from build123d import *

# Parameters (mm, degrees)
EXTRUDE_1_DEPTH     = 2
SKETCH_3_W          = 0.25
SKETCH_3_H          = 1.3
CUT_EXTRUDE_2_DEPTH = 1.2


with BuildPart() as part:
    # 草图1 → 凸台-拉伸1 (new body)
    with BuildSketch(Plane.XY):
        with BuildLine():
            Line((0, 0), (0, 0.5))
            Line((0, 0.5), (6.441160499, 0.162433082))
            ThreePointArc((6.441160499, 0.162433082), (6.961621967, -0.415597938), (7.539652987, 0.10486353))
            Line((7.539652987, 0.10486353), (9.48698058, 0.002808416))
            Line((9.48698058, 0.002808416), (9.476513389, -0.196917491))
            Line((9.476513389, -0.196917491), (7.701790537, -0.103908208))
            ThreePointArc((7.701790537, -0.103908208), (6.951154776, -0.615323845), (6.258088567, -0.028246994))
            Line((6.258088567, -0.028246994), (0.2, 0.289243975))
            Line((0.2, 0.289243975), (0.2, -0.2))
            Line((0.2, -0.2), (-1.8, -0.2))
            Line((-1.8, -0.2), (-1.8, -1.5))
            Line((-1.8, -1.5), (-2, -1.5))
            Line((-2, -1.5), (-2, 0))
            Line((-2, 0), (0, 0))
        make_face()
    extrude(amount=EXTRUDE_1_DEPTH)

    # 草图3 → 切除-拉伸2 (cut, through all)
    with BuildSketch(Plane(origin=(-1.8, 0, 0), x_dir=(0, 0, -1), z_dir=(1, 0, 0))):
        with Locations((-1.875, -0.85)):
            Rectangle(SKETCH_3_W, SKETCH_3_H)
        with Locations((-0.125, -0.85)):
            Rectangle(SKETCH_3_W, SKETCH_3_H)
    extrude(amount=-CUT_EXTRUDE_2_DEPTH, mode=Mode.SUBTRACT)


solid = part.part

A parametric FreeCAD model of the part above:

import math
import FreeCAD as App
import Part
import Sketcher
Q = App.Units.Quantity

doc = App.newDocument("Part")
body = doc.addObject("PartDesign::Body", "Body")

sketch1 = body.newObject("Sketcher::SketchObject", "Sketch")
sketch1.AttachmentSupport = (doc.getObject("XY_Plane"), [""])
sketch1.MapMode = "FlatFace"
sketch1.addGeometry(Part.LineSegment(App.Vector(0, 0.5, 0), App.Vector(0, 0, 0)), False)
sketch1.addGeometry(Part.LineSegment(App.Vector(0, 0, 0), App.Vector(-2, 0, 0)), False)
sketch1.addGeometry(Part.LineSegment(App.Vector(-2, 0, 0), App.Vector(-2, -1.5, 0)), False)
sketch1.addGeometry(Part.LineSegment(App.Vector(-2, -1.5, 0), App.Vector(-1.8, -1.5, 0)), False)
sketch1.addGeometry(Part.LineSegment(App.Vector(-1.8, -1.5, 0), App.Vector(-1.8, -0.2, 0)), False)
sketch1.addGeometry(Part.LineSegment(App.Vector(-1.8, -0.2, 0), App.Vector(0.2, -0.2, 0)), False)
sketch1.addGeometry(Part.LineSegment(App.Vector(0.2, -0.2, 0), App.Vector(0.2, 0.29, 0)), False)
sketch1.addGeometry(Part.LineSegment(App.Vector(0.2, 0.29, 0), App.Vector(6.26, -0.03, 0)), False)
sketch1.addGeometry(Part.ArcOfCircle(Part.Circle(App.Vector(6.99, 0.13, 0), App.Vector(0, 0, 1), 0.75), math.radians(-168), math.radians(-18)), False)
sketch1.addGeometry(Part.LineSegment(App.Vector(7.7, -0.1, 0), App.Vector(9.48, -0.2, 0)), False)
sketch1.addGeometry(Part.LineSegment(App.Vector(9.48, -0.2, 0), App.Vector(9.49, 0, 0)), False)
sketch1.addGeometry(Part.LineSegment(App.Vector(9.49, 0, 0), App.Vector(7.54, 0.1, 0)), False)
sketch1.addGeometry(Part.ArcOfCircle(Part.Circle(App.Vector(6.99, 0.13, 0), App.Vector(0, 0, 1), 0.55), math.radians(177), math.radians(357)), False)
sketch1.addGeometry(Part.LineSegment(App.Vector(6.44, 0.16, 0), App.Vector(0, 0.5, 0)), False)
sketch1.addConstraint(Sketcher.Constraint("Coincident", 0, 2, 1, 1))
sketch1.addConstraint(Sketcher.Constraint("Coincident", 1, 2, 2, 1))
sketch1.addConstraint(Sketcher.Constraint("Coincident", 2, 2, 3, 1))
sketch1.addConstraint(Sketcher.Constraint("Coincident", 3, 2, 4, 1))
sketch1.addConstraint(Sketcher.Constraint("Coincident", 4, 2, 5, 1))
sketch1.addConstraint(Sketcher.Constraint("Coincident", 5, 2, 6, 1))
sketch1.addConstraint(Sketcher.Constraint("Coincident", 6, 2, 7, 1))
sketch1.addConstraint(Sketcher.Constraint("Coincident", 7, 2, 8, 1))
sketch1.addConstraint(Sketcher.Constraint("Coincident", 8, 2, 9, 1))
sketch1.addConstraint(Sketcher.Constraint("Coincident", 9, 2, 10, 1))
sketch1.addConstraint(Sketcher.Constraint("Coincident", 10, 2, 11, 1))
sketch1.addConstraint(Sketcher.Constraint("Coincident", 11, 2, 12, 2))
sketch1.addConstraint(Sketcher.Constraint("Coincident", 12, 1, 13, 1))
sketch1.addConstraint(Sketcher.Constraint("Coincident", 13, 2, 0, 1))
sketch1.addConstraint(Sketcher.Constraint("Vertical", 0))
sketch1.addConstraint(Sketcher.Constraint("Horizontal", 1))
sketch1.addConstraint(Sketcher.Constraint("Vertical", 2))
sketch1.addConstraint(Sketcher.Constraint("Horizontal", 3))
sketch1.addConstraint(Sketcher.Constraint("Vertical", 4))
sketch1.addConstraint(Sketcher.Constraint("Horizontal", 5))
sketch1.addConstraint(Sketcher.Constraint("Vertical", 6))
sketch1.addConstraint(Sketcher.Constraint("Coincident", 0, 2, -1, 1))
sketch1.addConstraint(Sketcher.Constraint("Coincident", 12, 3, 8, 3))
sketch1.addConstraint(Sketcher.Constraint("Parallel", 7, 9))
sketch1.addConstraint(Sketcher.Constraint("Perpendicular", 9, 10))
sketch1.addConstraint(Sketcher.Constraint("Perpendicular", 10, 11))
sketch1.addConstraint(Sketcher.Constraint("Parallel", 11, 13))
sketch1.addConstraint(Sketcher.Constraint("Equal", 1, 5))
sketch1.addConstraint(Sketcher.Constraint("DistanceX", 1, 2, 1, 1, Q("2 mm")))
sketch1.addConstraint(Sketcher.Constraint("Angle", 7, Q("-3 deg")))
sketch1.addConstraint(Sketcher.Constraint("Radius", 8, Q("0.75 mm")))
sketch1.addConstraint(Sketcher.Constraint("Radius", 12, Q("0.55 mm")))
sketch1.addConstraint(Sketcher.Constraint("DistanceX", 3, 1, 3, 2, Q("0.2 mm")))
sketch1.addConstraint(Sketcher.Constraint("DistanceY", 0, 2, 0, 1, Q("0.5 mm")))
sketch1.addConstraint(Sketcher.Constraint("DistanceY", 2, 2, 2, 1, Q("1.5 mm")))
sketch1.addConstraint(Sketcher.Constraint("DistanceY", 4, 1, 4, 2, Q("1.3 mm")))
sketch1.addConstraint(Sketcher.Constraint("Distance", 10, Q("0.2 mm")))
sketch1.addConstraint(Sketcher.Constraint("Distance", 11, Q("1.95 mm")))
sketch1.addConstraint(Sketcher.Constraint("Distance", 13, Q("6.45 mm")))
sketch1.addConstraint(Sketcher.Constraint("DistanceX", 7, 2, 8, 2, Q("1.443702 mm")))
sketch1.addConstraint(Sketcher.Constraint("Distance", 9, Q("1.777158 mm")))
sketch1.addConstraint(Sketcher.Constraint("DistanceY", 6, 1, 6, 2, Q("0.489244 mm")))
pad1 = body.newObject("PartDesign::Pad", "Pad")
pad1.Profile = sketch1
pad1.Length = 2

sketch2 = body.newObject("Sketcher::SketchObject", "Sketch001")
sketch2.AttachmentSupport = (doc.getObject("YZ_Plane"), [""])
sketch2.MapMode = "FlatFace"
sketch2.AttachmentOffset = App.Placement(App.Vector(0, 0, -1.8), App.Rotation())
sketch2.addGeometry(Part.LineSegment(App.Vector(-0.2, 2, 0), App.Vector(-1.5, 2, 0)), False)
sketch2.addGeometry(Part.LineSegment(App.Vector(-1.5, 2, 0), App.Vector(-1.5, 1.75, 0)), False)
sketch2.addGeometry(Part.LineSegment(App.Vector(-1.5, 1.75, 0), App.Vector(-0.2, 1.75, 0)), False)
sketch2.addGeometry(Part.LineSegment(App.Vector(-0.2, 1.75, 0), App.Vector(-0.2, 2, 0)), False)
sketch2.addGeometry(Part.LineSegment(App.Vector(-0.2, 0.25, 0), App.Vector(-1.5, 0.25, 0)), False)
sketch2.addGeometry(Part.LineSegment(App.Vector(-1.5, 0.25, 0), App.Vector(-1.5, 0, 0)), False)
sketch2.addGeometry(Part.LineSegment(App.Vector(-1.5, 0, 0), App.Vector(-0.2, 0, 0)), False)
sketch2.addGeometry(Part.LineSegment(App.Vector(-0.2, 0, 0), App.Vector(-0.2, 0.25, 0)), False)
sketch2.addConstraint(Sketcher.Constraint("Coincident", 0, 2, 1, 1))
sketch2.addConstraint(Sketcher.Constraint("Coincident", 1, 2, 2, 1))
sketch2.addConstraint(Sketcher.Constraint("Coincident", 2, 2, 3, 1))
sketch2.addConstraint(Sketcher.Constraint("Coincident", 3, 2, 0, 1))
sketch2.addConstraint(Sketcher.Constraint("Coincident", 4, 2, 5, 1))
sketch2.addConstraint(Sketcher.Constraint("Coincident", 5, 2, 6, 1))
sketch2.addConstraint(Sketcher.Constraint("Coincident", 6, 2, 7, 1))
sketch2.addConstraint(Sketcher.Constraint("Coincident", 7, 2, 4, 1))
sketch2.addConstraint(Sketcher.Constraint("Horizontal", 0))
sketch2.addConstraint(Sketcher.Constraint("Vertical", 1))
sketch2.addConstraint(Sketcher.Constraint("Horizontal", 2))
sketch2.addConstraint(Sketcher.Constraint("Vertical", 3))
sketch2.addConstraint(Sketcher.Constraint("Horizontal", 4))
sketch2.addConstraint(Sketcher.Constraint("Vertical", 5))
sketch2.addConstraint(Sketcher.Constraint("Horizontal", 6))
sketch2.addConstraint(Sketcher.Constraint("Vertical", 7))
sketch2.addConstraint(Sketcher.Constraint("PointOnObject", 5, 2, -1))
sketch2.addConstraint(Sketcher.Constraint("Vertical", 1, 2, 4, 2))
sketch2.addConstraint(Sketcher.Constraint("Vertical", 3, 2, 6, 2))
sketch2.addConstraint(Sketcher.Constraint("Equal", 3, 5))
sketch2.addConstraint(Sketcher.Constraint("DistanceX", 0, 2, 0, 1, Q("1.3 mm")))
sketch2.addConstraint(Sketcher.Constraint("DistanceY", -1, 1, 0, 2, Q("2 mm")))
sketch2.addConstraint(Sketcher.Constraint("DistanceY", 1, 2, 1, 1, Q("0.25 mm")))
sketch2.addConstraint(Sketcher.Constraint("DistanceX", 0, 2, -1, 1, Q("1.5 mm")))
pocket1 = body.newObject("PartDesign::Pocket", "Pocket")
pocket1.Profile = sketch2
pocket1.Type = "ThroughAll"

doc.recompute()
